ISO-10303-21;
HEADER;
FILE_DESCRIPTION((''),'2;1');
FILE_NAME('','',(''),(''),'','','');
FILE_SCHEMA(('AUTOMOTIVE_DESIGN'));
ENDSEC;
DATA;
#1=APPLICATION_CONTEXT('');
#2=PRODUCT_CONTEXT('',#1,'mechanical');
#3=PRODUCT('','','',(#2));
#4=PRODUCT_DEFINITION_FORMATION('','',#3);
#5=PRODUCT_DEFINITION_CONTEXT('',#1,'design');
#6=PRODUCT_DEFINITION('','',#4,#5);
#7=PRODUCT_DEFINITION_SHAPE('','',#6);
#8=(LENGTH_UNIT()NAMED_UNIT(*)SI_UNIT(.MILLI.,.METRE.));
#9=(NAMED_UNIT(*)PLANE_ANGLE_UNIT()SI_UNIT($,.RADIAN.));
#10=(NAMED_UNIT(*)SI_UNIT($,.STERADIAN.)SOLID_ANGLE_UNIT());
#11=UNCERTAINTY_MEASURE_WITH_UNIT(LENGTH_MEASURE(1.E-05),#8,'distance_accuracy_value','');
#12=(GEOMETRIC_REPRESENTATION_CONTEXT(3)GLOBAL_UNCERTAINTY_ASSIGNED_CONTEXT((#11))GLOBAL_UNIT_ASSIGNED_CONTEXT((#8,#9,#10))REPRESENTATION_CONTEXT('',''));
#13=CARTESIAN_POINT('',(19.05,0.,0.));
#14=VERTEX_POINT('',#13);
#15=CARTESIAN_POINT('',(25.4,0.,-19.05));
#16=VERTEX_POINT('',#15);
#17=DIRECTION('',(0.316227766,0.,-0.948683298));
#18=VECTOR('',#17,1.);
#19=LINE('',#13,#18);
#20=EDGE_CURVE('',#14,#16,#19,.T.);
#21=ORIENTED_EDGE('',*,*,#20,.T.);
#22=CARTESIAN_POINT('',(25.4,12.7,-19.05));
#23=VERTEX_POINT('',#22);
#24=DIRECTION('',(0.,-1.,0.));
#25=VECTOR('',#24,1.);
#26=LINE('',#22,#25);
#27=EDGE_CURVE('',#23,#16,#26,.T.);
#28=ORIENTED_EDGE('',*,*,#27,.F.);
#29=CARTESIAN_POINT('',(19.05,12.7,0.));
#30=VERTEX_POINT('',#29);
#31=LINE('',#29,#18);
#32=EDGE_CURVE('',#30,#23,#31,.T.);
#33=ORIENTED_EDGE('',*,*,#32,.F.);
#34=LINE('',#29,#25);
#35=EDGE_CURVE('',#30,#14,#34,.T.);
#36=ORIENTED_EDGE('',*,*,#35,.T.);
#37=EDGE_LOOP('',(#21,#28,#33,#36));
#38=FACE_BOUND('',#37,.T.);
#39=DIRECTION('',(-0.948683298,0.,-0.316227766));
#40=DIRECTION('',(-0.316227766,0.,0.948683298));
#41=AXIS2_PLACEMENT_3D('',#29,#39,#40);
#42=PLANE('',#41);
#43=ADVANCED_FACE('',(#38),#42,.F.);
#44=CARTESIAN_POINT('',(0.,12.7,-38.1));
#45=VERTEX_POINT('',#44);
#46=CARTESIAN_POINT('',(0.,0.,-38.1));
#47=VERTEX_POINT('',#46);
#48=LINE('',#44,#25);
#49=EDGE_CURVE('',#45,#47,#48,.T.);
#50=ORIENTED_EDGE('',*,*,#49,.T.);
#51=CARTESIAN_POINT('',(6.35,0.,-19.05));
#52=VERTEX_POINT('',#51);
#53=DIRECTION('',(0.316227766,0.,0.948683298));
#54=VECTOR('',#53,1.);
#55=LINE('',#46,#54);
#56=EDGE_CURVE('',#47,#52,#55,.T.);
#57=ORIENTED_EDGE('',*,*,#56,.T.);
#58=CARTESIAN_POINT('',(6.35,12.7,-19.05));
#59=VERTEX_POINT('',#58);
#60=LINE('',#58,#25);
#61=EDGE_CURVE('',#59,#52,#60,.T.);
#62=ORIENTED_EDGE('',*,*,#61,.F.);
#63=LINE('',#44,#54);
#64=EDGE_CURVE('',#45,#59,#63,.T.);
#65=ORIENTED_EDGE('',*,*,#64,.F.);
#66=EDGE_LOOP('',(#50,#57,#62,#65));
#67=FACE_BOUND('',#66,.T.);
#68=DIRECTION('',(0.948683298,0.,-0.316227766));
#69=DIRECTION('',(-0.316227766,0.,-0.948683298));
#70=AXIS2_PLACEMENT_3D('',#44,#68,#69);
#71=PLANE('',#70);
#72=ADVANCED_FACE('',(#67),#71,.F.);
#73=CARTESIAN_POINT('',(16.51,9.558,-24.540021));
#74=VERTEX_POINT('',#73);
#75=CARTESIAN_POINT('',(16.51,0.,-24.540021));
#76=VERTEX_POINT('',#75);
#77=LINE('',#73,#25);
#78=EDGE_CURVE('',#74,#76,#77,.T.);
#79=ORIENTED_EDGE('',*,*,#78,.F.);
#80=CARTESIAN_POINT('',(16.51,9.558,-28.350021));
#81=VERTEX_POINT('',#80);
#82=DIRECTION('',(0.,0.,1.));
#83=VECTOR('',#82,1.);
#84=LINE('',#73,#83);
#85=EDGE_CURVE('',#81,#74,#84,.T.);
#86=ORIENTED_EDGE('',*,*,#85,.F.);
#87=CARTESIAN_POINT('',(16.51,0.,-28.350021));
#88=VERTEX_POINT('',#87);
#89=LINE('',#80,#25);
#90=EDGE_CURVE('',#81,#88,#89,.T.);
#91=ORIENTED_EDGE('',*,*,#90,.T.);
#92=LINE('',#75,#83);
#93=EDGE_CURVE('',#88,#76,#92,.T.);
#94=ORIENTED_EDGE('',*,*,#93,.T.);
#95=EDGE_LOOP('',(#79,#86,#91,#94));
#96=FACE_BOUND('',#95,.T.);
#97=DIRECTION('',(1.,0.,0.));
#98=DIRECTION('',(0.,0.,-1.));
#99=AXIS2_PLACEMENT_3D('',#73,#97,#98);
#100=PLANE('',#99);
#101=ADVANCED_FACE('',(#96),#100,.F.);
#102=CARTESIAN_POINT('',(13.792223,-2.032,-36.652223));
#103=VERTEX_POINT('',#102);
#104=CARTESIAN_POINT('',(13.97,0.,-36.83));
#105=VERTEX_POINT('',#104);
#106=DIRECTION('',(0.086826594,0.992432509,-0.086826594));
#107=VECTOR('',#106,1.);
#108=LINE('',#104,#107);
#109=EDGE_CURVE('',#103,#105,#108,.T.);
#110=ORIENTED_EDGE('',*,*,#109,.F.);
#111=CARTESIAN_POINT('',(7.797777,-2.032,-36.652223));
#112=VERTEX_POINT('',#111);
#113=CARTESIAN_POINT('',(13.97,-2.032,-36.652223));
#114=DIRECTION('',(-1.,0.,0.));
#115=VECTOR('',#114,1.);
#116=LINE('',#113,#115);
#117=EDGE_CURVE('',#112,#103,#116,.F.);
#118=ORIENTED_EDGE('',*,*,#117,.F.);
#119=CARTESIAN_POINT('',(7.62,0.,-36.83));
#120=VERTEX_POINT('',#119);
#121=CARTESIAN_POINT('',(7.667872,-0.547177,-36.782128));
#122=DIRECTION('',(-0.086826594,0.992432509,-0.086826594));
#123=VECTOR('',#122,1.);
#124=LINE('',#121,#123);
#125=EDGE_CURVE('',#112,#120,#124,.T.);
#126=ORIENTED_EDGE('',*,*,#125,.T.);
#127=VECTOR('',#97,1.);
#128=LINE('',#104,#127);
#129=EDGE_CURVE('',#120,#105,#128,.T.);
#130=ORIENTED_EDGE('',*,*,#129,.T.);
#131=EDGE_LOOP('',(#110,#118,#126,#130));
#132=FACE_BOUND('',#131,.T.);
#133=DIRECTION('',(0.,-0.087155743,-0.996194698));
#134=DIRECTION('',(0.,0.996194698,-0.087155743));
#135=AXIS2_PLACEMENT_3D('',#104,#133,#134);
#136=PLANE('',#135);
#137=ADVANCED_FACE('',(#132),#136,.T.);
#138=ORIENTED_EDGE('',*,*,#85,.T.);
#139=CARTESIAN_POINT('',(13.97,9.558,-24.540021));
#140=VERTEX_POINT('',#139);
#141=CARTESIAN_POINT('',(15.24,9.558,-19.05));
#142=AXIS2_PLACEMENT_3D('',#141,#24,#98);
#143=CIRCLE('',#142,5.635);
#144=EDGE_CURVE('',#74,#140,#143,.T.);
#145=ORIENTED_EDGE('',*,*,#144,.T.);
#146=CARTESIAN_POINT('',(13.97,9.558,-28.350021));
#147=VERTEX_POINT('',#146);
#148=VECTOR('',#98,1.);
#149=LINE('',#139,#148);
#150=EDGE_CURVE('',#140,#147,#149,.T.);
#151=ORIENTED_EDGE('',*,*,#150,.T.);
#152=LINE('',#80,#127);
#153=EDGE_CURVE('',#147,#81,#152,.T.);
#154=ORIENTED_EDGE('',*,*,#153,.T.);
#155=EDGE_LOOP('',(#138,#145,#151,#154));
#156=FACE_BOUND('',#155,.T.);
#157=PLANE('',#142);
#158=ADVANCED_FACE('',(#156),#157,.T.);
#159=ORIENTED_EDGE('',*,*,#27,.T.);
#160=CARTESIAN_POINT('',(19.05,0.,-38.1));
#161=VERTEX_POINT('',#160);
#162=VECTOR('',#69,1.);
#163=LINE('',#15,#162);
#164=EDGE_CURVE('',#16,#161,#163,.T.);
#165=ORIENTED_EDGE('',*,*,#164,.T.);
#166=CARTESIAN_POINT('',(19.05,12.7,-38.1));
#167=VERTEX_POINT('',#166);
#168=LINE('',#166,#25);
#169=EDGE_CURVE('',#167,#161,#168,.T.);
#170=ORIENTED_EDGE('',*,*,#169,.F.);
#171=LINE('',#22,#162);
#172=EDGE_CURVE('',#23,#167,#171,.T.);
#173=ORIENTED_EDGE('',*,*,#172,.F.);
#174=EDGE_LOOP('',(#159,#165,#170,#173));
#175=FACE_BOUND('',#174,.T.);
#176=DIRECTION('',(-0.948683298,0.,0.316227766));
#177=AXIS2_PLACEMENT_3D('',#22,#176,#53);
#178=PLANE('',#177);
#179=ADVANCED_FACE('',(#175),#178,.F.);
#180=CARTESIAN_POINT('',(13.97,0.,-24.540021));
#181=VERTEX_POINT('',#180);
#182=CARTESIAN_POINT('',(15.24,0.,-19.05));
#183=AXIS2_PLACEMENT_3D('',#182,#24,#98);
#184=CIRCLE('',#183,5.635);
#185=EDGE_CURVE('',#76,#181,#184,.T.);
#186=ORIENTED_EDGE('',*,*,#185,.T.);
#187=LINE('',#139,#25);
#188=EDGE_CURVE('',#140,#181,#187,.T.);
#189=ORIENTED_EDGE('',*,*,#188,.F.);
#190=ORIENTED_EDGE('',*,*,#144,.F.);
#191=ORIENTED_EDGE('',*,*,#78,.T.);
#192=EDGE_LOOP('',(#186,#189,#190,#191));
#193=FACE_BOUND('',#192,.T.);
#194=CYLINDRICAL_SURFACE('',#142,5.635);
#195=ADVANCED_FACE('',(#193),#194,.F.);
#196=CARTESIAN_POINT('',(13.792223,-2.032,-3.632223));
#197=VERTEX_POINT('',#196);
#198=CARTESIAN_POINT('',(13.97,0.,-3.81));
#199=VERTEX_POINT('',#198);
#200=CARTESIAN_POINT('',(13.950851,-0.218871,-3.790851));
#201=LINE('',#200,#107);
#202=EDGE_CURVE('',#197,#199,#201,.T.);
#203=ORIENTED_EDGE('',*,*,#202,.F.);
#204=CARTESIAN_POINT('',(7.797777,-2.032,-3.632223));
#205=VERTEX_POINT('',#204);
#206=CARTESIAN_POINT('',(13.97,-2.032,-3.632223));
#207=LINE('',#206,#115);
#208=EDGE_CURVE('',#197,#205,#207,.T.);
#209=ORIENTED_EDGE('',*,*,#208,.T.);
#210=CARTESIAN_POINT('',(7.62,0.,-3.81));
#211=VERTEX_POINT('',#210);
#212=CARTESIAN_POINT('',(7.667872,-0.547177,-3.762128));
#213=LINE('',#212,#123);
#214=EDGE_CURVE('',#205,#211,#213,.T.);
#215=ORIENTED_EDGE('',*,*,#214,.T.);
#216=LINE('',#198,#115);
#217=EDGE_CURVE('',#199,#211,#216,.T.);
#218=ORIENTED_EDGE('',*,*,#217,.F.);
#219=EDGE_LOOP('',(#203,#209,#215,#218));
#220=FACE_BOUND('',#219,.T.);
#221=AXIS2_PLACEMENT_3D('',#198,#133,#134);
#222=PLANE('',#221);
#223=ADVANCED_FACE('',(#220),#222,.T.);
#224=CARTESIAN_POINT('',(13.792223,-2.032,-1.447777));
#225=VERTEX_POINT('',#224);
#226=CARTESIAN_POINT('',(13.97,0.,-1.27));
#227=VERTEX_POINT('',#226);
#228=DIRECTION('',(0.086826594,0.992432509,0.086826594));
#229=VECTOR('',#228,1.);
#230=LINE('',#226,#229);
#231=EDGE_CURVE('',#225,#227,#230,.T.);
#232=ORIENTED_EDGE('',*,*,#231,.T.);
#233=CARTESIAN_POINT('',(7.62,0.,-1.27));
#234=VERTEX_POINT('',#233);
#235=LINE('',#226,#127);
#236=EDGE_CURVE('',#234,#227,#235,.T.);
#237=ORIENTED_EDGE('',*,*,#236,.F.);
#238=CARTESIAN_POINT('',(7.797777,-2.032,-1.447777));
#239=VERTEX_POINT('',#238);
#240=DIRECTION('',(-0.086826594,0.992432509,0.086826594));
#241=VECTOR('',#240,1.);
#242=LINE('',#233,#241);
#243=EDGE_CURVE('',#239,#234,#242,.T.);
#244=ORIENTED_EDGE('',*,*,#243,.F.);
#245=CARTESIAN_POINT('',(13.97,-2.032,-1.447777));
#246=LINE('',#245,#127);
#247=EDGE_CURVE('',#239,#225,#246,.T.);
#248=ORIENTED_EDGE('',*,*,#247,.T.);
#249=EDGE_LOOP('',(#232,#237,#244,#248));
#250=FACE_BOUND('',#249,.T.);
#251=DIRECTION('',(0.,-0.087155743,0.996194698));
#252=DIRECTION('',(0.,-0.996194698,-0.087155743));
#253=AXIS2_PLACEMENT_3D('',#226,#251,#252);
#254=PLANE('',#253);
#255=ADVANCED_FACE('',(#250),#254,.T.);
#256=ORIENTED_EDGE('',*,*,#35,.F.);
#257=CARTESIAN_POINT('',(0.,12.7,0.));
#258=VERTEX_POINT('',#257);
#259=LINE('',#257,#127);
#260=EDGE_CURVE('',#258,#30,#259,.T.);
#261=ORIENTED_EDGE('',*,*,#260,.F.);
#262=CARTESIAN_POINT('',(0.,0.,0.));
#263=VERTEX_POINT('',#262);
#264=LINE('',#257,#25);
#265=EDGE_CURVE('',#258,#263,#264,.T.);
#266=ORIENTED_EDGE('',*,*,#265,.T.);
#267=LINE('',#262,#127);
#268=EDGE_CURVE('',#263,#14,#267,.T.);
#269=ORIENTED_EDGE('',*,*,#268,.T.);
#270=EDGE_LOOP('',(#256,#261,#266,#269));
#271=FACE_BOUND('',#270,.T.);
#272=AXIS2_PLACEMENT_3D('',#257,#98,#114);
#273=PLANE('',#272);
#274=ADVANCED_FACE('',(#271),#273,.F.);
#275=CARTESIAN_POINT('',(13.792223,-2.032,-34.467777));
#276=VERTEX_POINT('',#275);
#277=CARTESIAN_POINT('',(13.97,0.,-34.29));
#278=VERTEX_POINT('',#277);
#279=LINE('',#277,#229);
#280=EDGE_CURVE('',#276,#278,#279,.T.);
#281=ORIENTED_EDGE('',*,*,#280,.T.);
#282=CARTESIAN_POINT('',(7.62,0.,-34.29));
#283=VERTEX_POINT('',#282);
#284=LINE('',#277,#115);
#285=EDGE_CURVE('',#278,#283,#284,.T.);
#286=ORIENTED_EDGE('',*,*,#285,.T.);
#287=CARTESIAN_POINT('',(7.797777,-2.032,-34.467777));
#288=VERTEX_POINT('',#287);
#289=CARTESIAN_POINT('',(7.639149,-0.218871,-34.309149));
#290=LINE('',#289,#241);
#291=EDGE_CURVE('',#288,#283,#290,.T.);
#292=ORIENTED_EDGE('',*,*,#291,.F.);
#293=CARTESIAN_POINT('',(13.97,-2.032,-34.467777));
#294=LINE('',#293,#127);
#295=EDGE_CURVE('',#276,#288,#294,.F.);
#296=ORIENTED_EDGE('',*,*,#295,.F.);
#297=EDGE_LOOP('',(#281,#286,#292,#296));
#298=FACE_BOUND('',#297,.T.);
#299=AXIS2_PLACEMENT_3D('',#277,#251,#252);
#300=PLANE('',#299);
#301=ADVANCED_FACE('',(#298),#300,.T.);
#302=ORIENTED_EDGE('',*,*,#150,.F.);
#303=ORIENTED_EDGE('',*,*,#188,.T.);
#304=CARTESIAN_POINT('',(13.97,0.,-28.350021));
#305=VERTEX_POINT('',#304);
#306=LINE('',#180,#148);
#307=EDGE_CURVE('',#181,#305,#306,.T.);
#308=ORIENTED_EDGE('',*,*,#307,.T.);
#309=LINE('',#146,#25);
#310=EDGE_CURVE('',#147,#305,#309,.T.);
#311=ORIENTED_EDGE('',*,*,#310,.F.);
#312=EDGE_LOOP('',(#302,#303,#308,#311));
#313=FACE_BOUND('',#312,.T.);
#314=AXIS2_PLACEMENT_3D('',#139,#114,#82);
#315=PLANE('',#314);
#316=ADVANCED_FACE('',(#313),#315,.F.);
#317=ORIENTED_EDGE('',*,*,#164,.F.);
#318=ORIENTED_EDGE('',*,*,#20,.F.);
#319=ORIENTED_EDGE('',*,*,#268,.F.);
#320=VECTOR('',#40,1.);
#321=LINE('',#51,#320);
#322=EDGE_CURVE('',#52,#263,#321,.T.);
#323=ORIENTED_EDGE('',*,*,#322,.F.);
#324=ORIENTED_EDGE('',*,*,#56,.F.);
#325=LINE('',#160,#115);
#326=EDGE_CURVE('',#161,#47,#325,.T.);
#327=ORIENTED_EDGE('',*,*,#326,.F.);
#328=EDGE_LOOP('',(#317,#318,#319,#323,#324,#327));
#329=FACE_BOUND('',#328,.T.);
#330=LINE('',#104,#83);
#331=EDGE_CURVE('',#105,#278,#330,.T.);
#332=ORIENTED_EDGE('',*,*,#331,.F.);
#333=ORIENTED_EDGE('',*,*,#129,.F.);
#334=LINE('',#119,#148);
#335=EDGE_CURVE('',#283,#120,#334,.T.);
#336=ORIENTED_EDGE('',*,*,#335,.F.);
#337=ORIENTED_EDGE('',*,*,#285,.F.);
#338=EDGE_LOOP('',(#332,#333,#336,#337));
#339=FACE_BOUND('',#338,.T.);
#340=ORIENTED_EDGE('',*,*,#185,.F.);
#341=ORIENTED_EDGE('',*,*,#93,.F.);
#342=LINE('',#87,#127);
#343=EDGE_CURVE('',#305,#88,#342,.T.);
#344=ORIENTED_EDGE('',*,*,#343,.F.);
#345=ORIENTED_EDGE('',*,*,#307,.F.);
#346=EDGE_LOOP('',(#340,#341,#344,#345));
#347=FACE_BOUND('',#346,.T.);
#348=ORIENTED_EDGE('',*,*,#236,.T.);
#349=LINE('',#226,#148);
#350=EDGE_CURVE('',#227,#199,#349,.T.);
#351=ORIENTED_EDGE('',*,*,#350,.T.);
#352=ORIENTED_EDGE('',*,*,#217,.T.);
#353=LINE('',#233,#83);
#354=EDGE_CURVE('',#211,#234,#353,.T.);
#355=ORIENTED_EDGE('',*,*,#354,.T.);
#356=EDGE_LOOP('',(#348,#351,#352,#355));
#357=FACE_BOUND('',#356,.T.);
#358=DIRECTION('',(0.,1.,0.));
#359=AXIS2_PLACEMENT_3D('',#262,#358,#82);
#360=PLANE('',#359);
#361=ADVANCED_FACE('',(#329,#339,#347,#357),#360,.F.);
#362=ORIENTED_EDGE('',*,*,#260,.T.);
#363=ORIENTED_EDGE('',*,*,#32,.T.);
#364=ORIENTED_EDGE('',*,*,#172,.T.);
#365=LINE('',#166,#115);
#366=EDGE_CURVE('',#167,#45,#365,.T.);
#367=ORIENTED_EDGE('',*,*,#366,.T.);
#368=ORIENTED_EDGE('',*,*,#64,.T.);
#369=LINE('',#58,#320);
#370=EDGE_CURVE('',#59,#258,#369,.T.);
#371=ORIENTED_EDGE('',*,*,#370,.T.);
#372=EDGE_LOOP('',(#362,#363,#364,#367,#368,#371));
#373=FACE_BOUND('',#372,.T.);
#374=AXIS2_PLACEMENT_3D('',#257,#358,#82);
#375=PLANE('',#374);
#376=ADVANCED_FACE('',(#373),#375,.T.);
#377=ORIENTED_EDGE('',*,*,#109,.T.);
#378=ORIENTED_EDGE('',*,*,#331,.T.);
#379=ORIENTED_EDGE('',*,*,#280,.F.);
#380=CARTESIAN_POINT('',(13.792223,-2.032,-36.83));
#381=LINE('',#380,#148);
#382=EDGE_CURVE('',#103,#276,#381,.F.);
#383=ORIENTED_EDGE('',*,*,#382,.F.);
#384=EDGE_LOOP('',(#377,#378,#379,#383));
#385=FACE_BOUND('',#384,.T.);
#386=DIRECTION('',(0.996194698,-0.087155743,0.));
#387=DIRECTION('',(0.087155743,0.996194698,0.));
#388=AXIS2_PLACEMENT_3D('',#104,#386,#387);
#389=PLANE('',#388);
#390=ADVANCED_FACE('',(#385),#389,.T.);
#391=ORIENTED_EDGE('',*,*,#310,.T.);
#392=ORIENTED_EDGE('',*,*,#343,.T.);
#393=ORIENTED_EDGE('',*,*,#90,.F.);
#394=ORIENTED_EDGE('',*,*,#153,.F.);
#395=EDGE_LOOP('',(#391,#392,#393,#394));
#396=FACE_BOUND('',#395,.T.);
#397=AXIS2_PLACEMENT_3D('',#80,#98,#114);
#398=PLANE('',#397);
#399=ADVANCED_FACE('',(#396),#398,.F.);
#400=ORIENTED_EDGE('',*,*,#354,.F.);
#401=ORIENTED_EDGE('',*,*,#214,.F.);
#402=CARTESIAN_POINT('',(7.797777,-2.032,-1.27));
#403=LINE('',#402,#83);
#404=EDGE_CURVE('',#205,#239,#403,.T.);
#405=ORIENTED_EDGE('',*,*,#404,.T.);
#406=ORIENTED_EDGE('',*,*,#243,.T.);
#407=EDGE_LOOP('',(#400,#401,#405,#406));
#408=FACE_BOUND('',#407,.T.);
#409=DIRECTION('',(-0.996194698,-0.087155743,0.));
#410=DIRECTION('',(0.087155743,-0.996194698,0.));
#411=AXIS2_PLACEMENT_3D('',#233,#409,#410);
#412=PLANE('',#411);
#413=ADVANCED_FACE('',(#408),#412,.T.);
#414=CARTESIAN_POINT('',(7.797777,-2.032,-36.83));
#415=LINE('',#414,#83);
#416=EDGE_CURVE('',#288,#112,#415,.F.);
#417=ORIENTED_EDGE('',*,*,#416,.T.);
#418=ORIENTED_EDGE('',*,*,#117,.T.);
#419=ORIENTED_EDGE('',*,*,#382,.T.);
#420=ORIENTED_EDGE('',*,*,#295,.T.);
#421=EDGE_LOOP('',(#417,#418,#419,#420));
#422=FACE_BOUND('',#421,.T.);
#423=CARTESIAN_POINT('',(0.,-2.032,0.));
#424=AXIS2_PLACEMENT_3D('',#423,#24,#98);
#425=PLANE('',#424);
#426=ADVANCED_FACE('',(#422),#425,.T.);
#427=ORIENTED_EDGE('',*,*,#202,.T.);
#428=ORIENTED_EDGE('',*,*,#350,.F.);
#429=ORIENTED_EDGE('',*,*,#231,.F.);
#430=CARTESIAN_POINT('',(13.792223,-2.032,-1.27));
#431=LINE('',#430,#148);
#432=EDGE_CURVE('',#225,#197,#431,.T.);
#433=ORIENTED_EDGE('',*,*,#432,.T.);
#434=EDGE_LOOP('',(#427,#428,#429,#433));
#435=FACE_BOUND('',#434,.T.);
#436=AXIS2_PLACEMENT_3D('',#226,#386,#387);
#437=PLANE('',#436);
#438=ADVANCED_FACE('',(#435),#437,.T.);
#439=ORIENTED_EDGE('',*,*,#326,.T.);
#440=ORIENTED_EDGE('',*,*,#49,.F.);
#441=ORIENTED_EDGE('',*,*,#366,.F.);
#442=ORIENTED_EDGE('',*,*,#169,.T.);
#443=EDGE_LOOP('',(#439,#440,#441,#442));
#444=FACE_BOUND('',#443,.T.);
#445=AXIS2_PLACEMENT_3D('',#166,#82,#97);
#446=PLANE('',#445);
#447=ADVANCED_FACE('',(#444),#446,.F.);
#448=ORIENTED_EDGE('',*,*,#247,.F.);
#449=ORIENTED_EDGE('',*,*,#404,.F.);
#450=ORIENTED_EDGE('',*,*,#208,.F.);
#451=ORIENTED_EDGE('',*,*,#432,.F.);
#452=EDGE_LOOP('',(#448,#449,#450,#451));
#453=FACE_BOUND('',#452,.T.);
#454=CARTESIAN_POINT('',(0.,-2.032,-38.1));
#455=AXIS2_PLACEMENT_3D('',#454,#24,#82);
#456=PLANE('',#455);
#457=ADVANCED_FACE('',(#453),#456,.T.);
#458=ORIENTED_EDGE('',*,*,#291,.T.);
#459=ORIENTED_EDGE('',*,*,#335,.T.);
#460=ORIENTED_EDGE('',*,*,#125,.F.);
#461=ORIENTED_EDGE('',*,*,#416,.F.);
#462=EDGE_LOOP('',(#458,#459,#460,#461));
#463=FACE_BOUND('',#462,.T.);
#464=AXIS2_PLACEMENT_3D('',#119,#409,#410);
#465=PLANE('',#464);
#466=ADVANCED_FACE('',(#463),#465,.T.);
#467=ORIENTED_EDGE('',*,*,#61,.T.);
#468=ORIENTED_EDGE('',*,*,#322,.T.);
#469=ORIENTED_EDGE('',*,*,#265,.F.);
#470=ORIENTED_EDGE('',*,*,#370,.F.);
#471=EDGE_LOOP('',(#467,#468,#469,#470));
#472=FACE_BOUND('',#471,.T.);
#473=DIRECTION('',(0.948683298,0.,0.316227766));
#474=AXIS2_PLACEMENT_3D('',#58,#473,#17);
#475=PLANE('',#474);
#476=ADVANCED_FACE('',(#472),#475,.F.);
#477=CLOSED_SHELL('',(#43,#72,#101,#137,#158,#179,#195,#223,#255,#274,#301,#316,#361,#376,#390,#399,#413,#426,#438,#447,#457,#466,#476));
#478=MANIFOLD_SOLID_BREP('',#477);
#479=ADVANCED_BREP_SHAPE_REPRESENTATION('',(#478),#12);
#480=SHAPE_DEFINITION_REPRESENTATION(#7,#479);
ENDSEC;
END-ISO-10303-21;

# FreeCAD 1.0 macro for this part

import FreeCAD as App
import Part
import Sketcher
Q = App.Units.Quantity


def add_polygon(sketch, points):
    """Adds a closed chain of lines whose ends are joined by coincident constraints."""
    first, n = sketch.GeometryCount, len(points)
    for a, b in zip(points, points[1:] + points[:1]):
        sketch.addGeometry(Part.LineSegment(App.Vector(*a, 0), App.Vector(*b, 0)), False)
    for i in range(n):
        sketch.addConstraint(Sketcher.Constraint("Coincident", first + i, 2, first + (i + 1) % n, 1))

doc = App.newDocument("Part")
body = doc.addObject("PartDesign::Body", "Body")

sketch1 = body.newObject("Sketcher::SketchObject", "Sketch")
sketch1.AttachmentSupport = (doc.getObject("XZ_Plane"), [""])
sketch1.MapMode = "FlatFace"
add_polygon(sketch1, [(0, 0), (19.05, 0), (25.4, -19.05), (19.05, -38.1), (0, -38.1), (6.35, -19.05)])
sketch1.addConstraint([
    Sketcher.Constraint("Horizontal", 0),
    Sketcher.Constraint("Horizontal", 3),
    Sketcher.Constraint("Coincident", 5, 2, -1, 1),
    Sketcher.Constraint("PointOnObject", 3, 2, -2),
    Sketcher.Constraint("Parallel", 2, 4),
    Sketcher.Constraint("Parallel", 1, 5),
    Sketcher.Constraint("Horizontal", 1, 2, 4, 2),
    Sketcher.Constraint("Equal", 1, 2),
    Sketcher.Constraint("DistanceX", -1, 1, 1, 2, Q("1 in")),
    Sketcher.Constraint("DistanceX", 0, 1, 0, 2, Q("0.75 in")),
    Sketcher.Constraint("DistanceY", 2, 2, -1, 1, Q("1.5 in")),
])
pad1 = body.newObject("PartDesign::Pad", "Pad")
pad1.Profile = sketch1
pad1.Length = Q("0.5 in")
pad1.Reversed = True

sketch2 = body.newObject("Sketcher::SketchObject", "Sketch001")
sketch2.AttachmentSupport = (doc.getObject("XZ_Plane"), [""])
sketch2.MapMode = "FlatFace"
sketch2.addGeometry(Part.Circle(App.Vector(15.24, -19.05, 0), App.Vector(0, 0, 1), 5.635), False)
sketch2.addConstraint([
    Sketcher.Constraint("DistanceX", -1, 1, 0, 3, Q("0.6 in")),
    Sketcher.Constraint("Diameter", 0, Q("11.27 mm")),
    Sketcher.Constraint("DistanceY", 0, 3, -1, 1, Q("0.75 in")),
])
pocket1 = body.newObject("PartDesign::Pocket", "Pocket")
pocket1.Profile = sketch2
pocket1.Length = 9.558

sketch3 = body.newObject("Sketcher::SketchObject", "Sketch002")
sketch3.AttachmentSupport = (doc.getObject("XZ_Plane"), [""])
sketch3.MapMode = "FlatFace"
add_polygon(sketch3, [(13.97, -24.540021), (13.97, -28.350021), (16.51, -28.350021), (16.51, -24.540021)])
sketch3.addConstraint([
    Sketcher.Constraint("Vertical", 0),
    Sketcher.Constraint("Horizontal", 1),
    Sketcher.Constraint("Vertical", 2),
    Sketcher.Constraint("Horizontal", 3),
    Sketcher.Constraint("DistanceX", 1, 1, 1, 2, Q("0.1 in")),
    Sketcher.Constraint("DistanceY", 0, 2, 0, 1, Q("0.15 in")),
    Sketcher.Constraint("DistanceX", -1, 1, 0, 2, Q("0.55 in")),
    Sketcher.Constraint("DistanceY", 0, 2, -1, 1, Q("28.350021 mm")),
])
pocket2 = body.newObject("PartDesign::Pocket", "Pocket001")
pocket2.Profile = sketch3
pocket2.Length = 9.558

sketch4 = body.newObject("Sketcher::SketchObject", "Sketch003")
sketch4.AttachmentSupport = (doc.getObject("XZ_Plane"), [""])
sketch4.MapMode = "FlatFace"
add_polygon(sketch4, [(7.62, -34.29), (7.62, -36.83), (13.97, -36.83), (13.97, -34.29)])
sketch4.addConstraint([
    Sketcher.Constraint("Vertical", 0),
    Sketcher.Constraint("Horizontal", 1),
    Sketcher.Constraint("Vertical", 2),
    Sketcher.Constraint("Horizontal", 3),
    Sketcher.Constraint("DistanceY", 0, 2, 0, 1, Q("0.1 in")),
    Sketcher.Constraint("DistanceX", 1, 1, 1, 2, Q("0.25 in")),
    Sketcher.Constraint("DistanceX", -1, 1, 0, 2, Q("0.3 in")),
    Sketcher.Constraint("DistanceY", 0, 2, -1, 1, Q("1.45 in")),
])
pad2 = body.newObject("PartDesign::Pad", "Pad001")
pad2.Profile = sketch4
pad2.Length = Q("0.08 in")
pad2.TaperAngle = -5
doc.recompute()

datumplane = body.newObject("PartDesign::Plane", "DatumPlane")
datumplane.AttachmentSupport = (doc.getObject("XY_Plane"), [""])
datumplane.MapMode = "FlatFace"
datumplane.AttachmentOffset = App.Placement(App.Vector(0, 0, -0.75 * 25.4), App.Rotation())
mirrored = body.newObject("PartDesign::Mirrored", "Mirrored")
mirrored.Originals = [pad2]
mirrored.MirrorPlane = (datumplane, [""])
body.Tip = mirrored

doc.recompute()
